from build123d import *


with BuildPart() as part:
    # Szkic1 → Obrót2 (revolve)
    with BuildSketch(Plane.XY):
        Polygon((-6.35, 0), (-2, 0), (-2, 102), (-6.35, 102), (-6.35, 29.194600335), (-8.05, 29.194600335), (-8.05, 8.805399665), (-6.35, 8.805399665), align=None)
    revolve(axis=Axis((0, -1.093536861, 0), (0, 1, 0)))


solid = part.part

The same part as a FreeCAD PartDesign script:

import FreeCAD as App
import Part
import Sketcher

V = App.Vector
Q = App.Units.Quantity

doc = App.newDocument("Part")
body = doc.addObject("PartDesign::Body", "Body")

# Sketch on XY plane
sketch1 = body.newObject("Sketcher::SketchObject", "Sketch")
sketch1.AttachmentSupport = (doc.getObject("XY_Plane"), [""])
sketch1.MapMode = "FlatFace"
sketch1.addGeometry(Part.LineSegment(V(-6.3, 0, 0), V(-2, 0, 0)), False)
sketch1.addGeometry(Part.LineSegment(V(-2, 0, 0), V(-2, 102, 0)), False)
sketch1.addGeometry(Part.LineSegment(V(-2, 102, 0), V(-6.3, 102, 0)), False)
sketch1.addGeometry(Part.LineSegment(V(-6.3, 102, 0), V(-6.3, 29.2, 0)), False)
sketch1.addGeometry(Part.LineSegment(V(-6.3, 29.2, 0), V(-8.1, 29.2, 0)), False)
sketch1.addGeometry(Part.LineSegment(V(-8.1, 29.2, 0), V(-8.1, 8.8, 0)), False)
sketch1.addGeometry(Part.LineSegment(V(-8.1, 8.8, 0), V(-6.3, 8.8, 0)), False)
sketch1.addGeometry(Part.LineSegment(V(-6.3, 8.8, 0), V(-6.3, 0, 0)), False)
sketch1.addConstraint(Sketcher.Constraint("Coincident", 0, 2, 1, 1))
sketch1.addConstraint(Sketcher.Constraint("Coincident", 1, 2, 2, 1))
sketch1.addConstraint(Sketcher.Constraint("Coincident", 2, 2, 3, 1))
sketch1.addConstraint(Sketcher.Constraint("Coincident", 3, 2, 4, 1))
sketch1.addConstraint(Sketcher.Constraint("Coincident", 4, 2, 5, 1))
sketch1.addConstraint(Sketcher.Constraint("Coincident", 5, 2, 6, 1))
sketch1.addConstraint(Sketcher.Constraint("Coincident", 6, 2, 7, 1))
sketch1.addConstraint(Sketcher.Constraint("Coincident", 7, 2, 0, 1))
sketch1.addConstraint(Sketcher.Constraint("Horizontal", 0))
sketch1.addConstraint(Sketcher.Constraint("Vertical", 1))
sketch1.addConstraint(Sketcher.Constraint("Horizontal", 2))
sketch1.addConstraint(Sketcher.Constraint("Vertical", 3))
sketch1.addConstraint(Sketcher.Constraint("Horizontal", 4))
sketch1.addConstraint(Sketcher.Constraint("Vertical", 5))
sketch1.addConstraint(Sketcher.Constraint("Horizontal", 6))
sketch1.addConstraint(Sketcher.Constraint("Vertical", 7))
sketch1.addConstraint(Sketcher.Constraint("PointOnObject", 0, 2, -1))
sketch1.addConstraint(Sketcher.Constraint("Vertical", 3, 2, 6, 2))
sketch1.addConstraint(Sketcher.Constraint("DistanceY", 1, 1, 1, 2, Q("102 mm")))
sketch1.addConstraint(Sketcher.Constraint("DistanceX", 4, 2, 4, 1, Q("1.7 mm")))
sketch1.addConstraint(Sketcher.Constraint("DistanceX", 0, 2, -1, 1, Q("2 mm")))
sketch1.addConstraint(Sketcher.Constraint("DistanceX", 0, 1, 0, 2, Q("4.35 mm")))
sketch1.addConstraint(Sketcher.Constraint("DistanceY", 3, 2, 3, 1, Q("72.8054 mm")))
sketch1.addConstraint(Sketcher.Constraint("DistanceY", 5, 2, 5, 1, Q("20.389201 mm")))
revolution = body.newObject("PartDesign::Revolution", "Revolution")
revolution.Profile = sketch1
revolution.ReferenceAxis = (sketch1, ["V_Axis"])
revolution.Angle = 360

doc.recompute()
